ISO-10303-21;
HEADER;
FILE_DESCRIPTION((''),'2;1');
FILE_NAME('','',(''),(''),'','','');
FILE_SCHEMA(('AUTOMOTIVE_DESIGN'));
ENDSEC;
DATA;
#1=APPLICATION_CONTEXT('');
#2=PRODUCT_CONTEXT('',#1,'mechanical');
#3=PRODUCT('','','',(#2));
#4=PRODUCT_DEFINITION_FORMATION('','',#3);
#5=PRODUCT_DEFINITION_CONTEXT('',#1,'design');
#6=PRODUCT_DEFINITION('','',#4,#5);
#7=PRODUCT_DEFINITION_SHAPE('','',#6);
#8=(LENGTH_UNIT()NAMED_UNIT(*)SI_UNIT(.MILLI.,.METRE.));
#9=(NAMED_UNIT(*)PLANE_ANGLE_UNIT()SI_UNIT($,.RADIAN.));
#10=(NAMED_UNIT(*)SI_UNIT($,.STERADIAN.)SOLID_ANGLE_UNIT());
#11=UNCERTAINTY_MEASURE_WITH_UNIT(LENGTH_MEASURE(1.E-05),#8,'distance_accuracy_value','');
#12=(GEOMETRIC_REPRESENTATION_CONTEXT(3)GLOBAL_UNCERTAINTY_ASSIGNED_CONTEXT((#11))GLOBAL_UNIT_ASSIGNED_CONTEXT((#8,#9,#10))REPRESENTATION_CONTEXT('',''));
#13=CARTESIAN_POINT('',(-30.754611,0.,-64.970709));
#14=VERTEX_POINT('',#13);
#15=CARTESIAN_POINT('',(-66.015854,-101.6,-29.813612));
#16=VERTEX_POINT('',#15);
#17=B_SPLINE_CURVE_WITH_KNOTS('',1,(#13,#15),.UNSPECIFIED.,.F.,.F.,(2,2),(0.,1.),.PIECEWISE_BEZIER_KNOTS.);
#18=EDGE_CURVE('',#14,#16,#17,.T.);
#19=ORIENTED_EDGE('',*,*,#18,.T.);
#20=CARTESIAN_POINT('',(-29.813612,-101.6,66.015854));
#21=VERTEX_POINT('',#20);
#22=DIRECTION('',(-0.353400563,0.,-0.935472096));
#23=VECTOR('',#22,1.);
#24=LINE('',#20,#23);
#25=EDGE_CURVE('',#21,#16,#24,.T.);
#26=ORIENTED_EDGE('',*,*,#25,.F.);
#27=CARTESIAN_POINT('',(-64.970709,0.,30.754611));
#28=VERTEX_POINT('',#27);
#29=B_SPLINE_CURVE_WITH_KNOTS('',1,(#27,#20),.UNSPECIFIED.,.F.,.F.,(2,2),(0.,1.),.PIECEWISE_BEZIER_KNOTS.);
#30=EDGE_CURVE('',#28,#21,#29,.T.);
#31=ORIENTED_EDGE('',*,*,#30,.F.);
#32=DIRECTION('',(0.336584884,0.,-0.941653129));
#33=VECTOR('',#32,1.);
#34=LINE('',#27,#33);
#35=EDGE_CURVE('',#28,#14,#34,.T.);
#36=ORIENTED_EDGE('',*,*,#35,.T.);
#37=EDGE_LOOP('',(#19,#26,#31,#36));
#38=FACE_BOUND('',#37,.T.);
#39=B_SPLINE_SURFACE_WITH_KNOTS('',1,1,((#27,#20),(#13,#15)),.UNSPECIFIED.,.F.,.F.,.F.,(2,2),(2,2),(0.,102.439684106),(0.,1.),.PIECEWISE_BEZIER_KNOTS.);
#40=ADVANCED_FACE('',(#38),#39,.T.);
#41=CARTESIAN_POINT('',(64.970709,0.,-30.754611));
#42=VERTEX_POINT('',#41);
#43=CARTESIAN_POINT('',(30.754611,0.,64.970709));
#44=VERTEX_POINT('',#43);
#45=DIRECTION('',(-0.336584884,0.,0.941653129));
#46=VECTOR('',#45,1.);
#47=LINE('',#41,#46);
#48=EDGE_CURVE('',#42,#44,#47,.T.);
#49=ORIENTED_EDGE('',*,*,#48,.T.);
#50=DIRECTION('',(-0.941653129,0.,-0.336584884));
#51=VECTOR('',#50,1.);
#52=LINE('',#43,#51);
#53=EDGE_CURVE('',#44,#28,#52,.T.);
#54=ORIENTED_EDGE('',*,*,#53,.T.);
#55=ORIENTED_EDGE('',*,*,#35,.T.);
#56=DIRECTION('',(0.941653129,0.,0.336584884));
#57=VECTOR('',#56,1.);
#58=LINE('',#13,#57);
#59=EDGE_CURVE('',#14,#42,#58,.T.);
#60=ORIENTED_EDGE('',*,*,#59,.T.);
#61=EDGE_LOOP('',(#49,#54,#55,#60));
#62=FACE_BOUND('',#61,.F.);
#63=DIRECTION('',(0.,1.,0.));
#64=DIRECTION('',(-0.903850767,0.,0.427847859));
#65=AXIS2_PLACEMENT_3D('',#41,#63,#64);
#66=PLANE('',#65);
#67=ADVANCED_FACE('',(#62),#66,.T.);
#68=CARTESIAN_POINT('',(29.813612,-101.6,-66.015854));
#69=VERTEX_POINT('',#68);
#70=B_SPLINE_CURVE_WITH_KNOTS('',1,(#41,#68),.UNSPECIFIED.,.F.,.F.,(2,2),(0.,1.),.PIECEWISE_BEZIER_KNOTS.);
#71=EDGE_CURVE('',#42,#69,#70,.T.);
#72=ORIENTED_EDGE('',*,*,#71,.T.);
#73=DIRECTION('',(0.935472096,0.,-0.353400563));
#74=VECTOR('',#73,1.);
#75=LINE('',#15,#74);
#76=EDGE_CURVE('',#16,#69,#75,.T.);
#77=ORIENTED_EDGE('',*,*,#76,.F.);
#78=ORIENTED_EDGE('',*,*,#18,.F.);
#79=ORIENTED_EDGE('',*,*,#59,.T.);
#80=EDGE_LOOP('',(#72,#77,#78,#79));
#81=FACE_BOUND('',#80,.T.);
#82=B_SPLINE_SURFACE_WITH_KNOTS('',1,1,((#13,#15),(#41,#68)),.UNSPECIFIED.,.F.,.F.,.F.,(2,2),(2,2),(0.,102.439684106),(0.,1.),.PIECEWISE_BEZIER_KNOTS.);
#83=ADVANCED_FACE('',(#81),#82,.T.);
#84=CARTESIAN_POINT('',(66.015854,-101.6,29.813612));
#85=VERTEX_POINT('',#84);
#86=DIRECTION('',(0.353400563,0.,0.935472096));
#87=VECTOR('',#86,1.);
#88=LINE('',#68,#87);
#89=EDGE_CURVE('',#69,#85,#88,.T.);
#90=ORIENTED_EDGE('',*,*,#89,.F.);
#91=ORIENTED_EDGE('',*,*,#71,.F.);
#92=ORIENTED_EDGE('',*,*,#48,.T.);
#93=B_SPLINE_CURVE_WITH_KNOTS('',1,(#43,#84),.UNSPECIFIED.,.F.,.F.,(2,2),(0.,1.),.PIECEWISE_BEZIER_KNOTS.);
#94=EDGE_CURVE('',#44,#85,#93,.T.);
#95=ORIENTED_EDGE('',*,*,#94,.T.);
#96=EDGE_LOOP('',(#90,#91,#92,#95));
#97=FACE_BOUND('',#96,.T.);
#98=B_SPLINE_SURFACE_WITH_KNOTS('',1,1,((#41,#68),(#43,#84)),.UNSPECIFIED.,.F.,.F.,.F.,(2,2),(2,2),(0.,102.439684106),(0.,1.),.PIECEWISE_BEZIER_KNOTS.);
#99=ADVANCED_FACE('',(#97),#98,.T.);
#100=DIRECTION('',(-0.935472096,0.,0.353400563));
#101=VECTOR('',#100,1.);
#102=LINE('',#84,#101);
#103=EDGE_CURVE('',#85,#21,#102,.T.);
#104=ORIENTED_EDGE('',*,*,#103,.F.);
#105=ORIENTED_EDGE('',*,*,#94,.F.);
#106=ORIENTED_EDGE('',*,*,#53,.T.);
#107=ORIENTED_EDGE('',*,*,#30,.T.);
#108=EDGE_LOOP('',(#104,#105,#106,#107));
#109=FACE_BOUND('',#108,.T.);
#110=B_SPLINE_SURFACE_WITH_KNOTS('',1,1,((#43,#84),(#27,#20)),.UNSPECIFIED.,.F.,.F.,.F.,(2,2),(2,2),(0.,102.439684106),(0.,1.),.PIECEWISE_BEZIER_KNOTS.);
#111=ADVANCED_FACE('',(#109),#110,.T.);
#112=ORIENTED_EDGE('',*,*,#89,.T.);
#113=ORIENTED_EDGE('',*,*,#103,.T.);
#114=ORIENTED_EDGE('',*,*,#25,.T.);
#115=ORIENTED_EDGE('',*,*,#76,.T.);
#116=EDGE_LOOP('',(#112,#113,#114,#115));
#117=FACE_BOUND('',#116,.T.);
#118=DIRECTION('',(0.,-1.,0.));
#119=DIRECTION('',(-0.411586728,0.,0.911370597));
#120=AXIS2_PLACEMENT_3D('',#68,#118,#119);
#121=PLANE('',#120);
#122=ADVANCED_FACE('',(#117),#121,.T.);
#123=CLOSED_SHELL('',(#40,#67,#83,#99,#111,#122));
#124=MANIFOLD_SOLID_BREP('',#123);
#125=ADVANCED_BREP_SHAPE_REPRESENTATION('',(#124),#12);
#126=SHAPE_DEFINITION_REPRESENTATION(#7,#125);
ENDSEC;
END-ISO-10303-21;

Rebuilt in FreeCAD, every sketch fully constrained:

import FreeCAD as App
import Part
import Sketcher

V = App.Vector
Q = App.Units.Quantity

doc = App.newDocument("Part")
body = doc.addObject("PartDesign::Body", "Body")

sketch1 = doc.addObject("Sketcher::SketchObject", "Sketch")
body.addObject(sketch1)
sketch1.AttachmentSupport = (doc.XZ_Plane, [""])
sketch1.MapMode = "FlatFace"
sketch1.addGeometry([
    Part.LineSegment(V(64.970709, -30.754611, 0), V(30.754611, 64.970709, 0)),
    Part.LineSegment(V(30.754611, 64.970709, 0), V(-64.970709, 30.754611, 0)),
    Part.LineSegment(V(-64.970709, 30.754611, 0), V(-30.754611, -64.970709, 0)),
    Part.LineSegment(V(-30.754611, -64.970709, 0), V(64.970709, -30.754611, 0)),
], False)
sketch1.addConstraint([
    Sketcher.Constraint("Coincident", 0, 2, 1, 1),
    Sketcher.Constraint("Coincident", 1, 2, 2, 1),
    Sketcher.Constraint("Coincident", 2, 2, 3, 1),
    Sketcher.Constraint("Coincident", 3, 2, 0, 1),
    Sketcher.Constraint("Symmetric", 0, 2, 2, 2, -1, 1),
    Sketcher.Constraint("Symmetric", 1, 2, 3, 2, -1, 1),
    Sketcher.Constraint("Perpendicular", 0, 1),
    Sketcher.Constraint("Equal", 0, 1),
    Sketcher.Constraint("DistanceY", 1, 2, 0, 2, Q("34.216098 mm")),
    Sketcher.Constraint("Distance", 0, Q("101.656669 mm")),
])

sketch2 = doc.addObject("Sketcher::SketchObject", "Sketch001")
body.addObject(sketch2)
sketch2.AttachmentSupport = (doc.XZ_Plane, [""])
sketch2.MapMode = "FlatFace"
sketch2.AttachmentOffset = App.Placement(V(0, 0, 101.6), App.Rotation())
sketch2.addGeometry([
    Part.LineSegment(V(66.015854, 29.813612, 0), V(-29.813612, 66.015854, 0)),
    Part.LineSegment(V(-29.813612, 66.015854, 0), V(-66.015854, -29.813612, 0)),
    Part.LineSegment(V(-66.015854, -29.813612, 0), V(29.813612, -66.015854, 0)),
    Part.LineSegment(V(29.813612, -66.015854, 0), V(66.015854, 29.813612, 0)),
], False)
sketch2.addConstraint([
    Sketcher.Constraint("Coincident", 0, 2, 1, 1),
    Sketcher.Constraint("Coincident", 1, 2, 2, 1),
    Sketcher.Constraint("Coincident", 2, 2, 3, 1),
    Sketcher.Constraint("Coincident", 3, 2, 0, 1),
    Sketcher.Constraint("Symmetric", 0, 2, 2, 2, -1, 1),
    Sketcher.Constraint("Symmetric", 1, 2, 3, 2, -1, 1),
    Sketcher.Constraint("Perpendicular", 0, 1),
    Sketcher.Constraint("Equal", 0, 1),
    Sketcher.Constraint("DistanceX", 0, 2, -1, 1, Q("29.813612 mm")),
    Sketcher.Constraint("DistanceY", 2, 2, 0, 2, Q("132.031708 mm")),
])

additiveloft = doc.addObject("PartDesign::AdditiveLoft", "AdditiveLoft")
body.addObject(additiveloft)
additiveloft.Profile = sketch1
additiveloft.Sections = [sketch2]

doc.recompute()
